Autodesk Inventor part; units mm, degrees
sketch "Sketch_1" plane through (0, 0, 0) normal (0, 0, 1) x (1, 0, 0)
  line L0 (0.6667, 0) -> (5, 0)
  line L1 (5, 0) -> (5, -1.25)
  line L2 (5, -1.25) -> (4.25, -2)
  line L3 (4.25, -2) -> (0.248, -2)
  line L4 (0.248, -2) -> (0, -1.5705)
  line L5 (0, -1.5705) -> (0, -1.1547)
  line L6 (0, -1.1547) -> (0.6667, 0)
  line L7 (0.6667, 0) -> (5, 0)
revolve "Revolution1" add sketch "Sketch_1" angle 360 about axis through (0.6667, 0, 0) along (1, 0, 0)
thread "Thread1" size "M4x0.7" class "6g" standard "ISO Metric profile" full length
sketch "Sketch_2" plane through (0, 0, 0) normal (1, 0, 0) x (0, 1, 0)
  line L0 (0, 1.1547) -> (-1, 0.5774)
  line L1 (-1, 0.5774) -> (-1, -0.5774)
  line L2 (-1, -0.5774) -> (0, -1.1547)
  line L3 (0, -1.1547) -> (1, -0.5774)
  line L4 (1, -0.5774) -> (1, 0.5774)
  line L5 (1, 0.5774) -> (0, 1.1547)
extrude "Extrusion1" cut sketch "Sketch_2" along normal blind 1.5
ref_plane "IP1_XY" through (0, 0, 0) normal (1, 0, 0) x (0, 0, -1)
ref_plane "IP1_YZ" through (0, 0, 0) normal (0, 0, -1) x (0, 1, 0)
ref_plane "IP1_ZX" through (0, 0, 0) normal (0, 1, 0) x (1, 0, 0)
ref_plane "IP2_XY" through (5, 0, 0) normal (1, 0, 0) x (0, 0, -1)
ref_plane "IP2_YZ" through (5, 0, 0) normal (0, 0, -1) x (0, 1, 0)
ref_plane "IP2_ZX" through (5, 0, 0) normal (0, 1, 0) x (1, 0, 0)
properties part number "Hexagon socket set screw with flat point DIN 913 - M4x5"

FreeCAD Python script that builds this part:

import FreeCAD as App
import Part
import Sketcher
from FreeCAD import Vector
Q = App.Units.Quantity


def add_polygon(sketch, points):
    """Adds a closed chain of lines whose ends are joined by coincident constraints."""
    first, n = sketch.GeometryCount, len(points)
    for a, b in zip(points, points[1:] + points[:1]):
        sketch.addGeometry(Part.LineSegment(App.Vector(*a, 0), App.Vector(*b, 0)), False)
    for i in range(n):
        sketch.addConstraint(Sketcher.Constraint("Coincident", first + i, 2, first + (i + 1) % n, 1))

doc = App.newDocument("Part")
body = doc.addObject("PartDesign::Body", "Body")

sketch1 = body.newObject("Sketcher::SketchObject", "Sketch")
sketch1.AttachmentSupport = (doc.getObject("XY_Plane"), [""])
sketch1.MapMode = "FlatFace"
add_polygon(sketch1, [(5, 0), (0.6667, 0), (0, -1.1547), (0, -1.5705), (0.248, -2), (4.25, -2), (5, -1.25)])
sketch1.addConstraint([
    Sketcher.Constraint("Horizontal", 0),
    Sketcher.Constraint("Vertical", 2),
    Sketcher.Constraint("Horizontal", 4),
    Sketcher.Constraint("Vertical", 6),
    Sketcher.Constraint("PointOnObject", 0, 2, -1),
    Sketcher.Constraint("PointOnObject", 1, 2, -2),
    Sketcher.Constraint("Angle", 5, Q("45 deg")),
    Sketcher.Constraint("DistanceY", 3, 2, -1, 1, 2.0),
    Sketcher.Constraint("DistanceX", -1, 1, 5, 2, 5.0),
    Sketcher.Constraint("DistanceY", 6, 1, 6, 2, 1.25),
    Sketcher.Constraint("DistanceX", 4, 1, 4, 2, 4.002),
    Sketcher.Constraint("Distance", 3, 0.496),
    Sketcher.Constraint("DistanceX", 0, 2, 0, 1, 4.3333),
    Sketcher.Constraint("DistanceY", 2, 2, 2, 1, 0.4158),
])
revolution = body.newObject("PartDesign::Revolution", "Revolution")
revolution.Profile = sketch1
revolution.ReferenceAxis = (sketch1, ["H_Axis"])
revolution.Angle = 360

sketch2 = body.newObject("Sketcher::SketchObject", "Sketch001")
sketch2.AttachmentSupport = (doc.getObject("YZ_Plane"), [""])
sketch2.MapMode = "FlatFace"
add_polygon(sketch2, [(1, 0.5774), (0, 1.1547), (-1, 0.5774), (-1, -0.5774), (0, -1.1547), (1, -0.5774)])
sketch2.addConstraint([
    Sketcher.Constraint("Vertical", 2),
    Sketcher.Constraint("Vertical", 5),
    Sketcher.Constraint("Symmetric", 0, 2, 3, 2, -1, 1),
    Sketcher.Constraint("Symmetric", 1, 2, 4, 2, -1, 1),
    Sketcher.Constraint("PointOnObject", 0, 2, -2),
    Sketcher.Constraint("Parallel", 0, 3),
    Sketcher.Constraint("Horizontal", 2, 2, 4, 2),
    Sketcher.Constraint("DistanceX", 1, 2, -1, 1, 1.0),
    Sketcher.Constraint("DistanceY", 2, 2, 2, 1, 1.1548),
    Sketcher.Constraint("DistanceY", 2, 2, 0, 2, 1.732),
])
pocket1 = body.newObject("PartDesign::Pocket", "Pocket")
pocket1.Profile = sketch2
pocket1.Length = 1.5
pocket1.Reversed = True

doc.recompute()
